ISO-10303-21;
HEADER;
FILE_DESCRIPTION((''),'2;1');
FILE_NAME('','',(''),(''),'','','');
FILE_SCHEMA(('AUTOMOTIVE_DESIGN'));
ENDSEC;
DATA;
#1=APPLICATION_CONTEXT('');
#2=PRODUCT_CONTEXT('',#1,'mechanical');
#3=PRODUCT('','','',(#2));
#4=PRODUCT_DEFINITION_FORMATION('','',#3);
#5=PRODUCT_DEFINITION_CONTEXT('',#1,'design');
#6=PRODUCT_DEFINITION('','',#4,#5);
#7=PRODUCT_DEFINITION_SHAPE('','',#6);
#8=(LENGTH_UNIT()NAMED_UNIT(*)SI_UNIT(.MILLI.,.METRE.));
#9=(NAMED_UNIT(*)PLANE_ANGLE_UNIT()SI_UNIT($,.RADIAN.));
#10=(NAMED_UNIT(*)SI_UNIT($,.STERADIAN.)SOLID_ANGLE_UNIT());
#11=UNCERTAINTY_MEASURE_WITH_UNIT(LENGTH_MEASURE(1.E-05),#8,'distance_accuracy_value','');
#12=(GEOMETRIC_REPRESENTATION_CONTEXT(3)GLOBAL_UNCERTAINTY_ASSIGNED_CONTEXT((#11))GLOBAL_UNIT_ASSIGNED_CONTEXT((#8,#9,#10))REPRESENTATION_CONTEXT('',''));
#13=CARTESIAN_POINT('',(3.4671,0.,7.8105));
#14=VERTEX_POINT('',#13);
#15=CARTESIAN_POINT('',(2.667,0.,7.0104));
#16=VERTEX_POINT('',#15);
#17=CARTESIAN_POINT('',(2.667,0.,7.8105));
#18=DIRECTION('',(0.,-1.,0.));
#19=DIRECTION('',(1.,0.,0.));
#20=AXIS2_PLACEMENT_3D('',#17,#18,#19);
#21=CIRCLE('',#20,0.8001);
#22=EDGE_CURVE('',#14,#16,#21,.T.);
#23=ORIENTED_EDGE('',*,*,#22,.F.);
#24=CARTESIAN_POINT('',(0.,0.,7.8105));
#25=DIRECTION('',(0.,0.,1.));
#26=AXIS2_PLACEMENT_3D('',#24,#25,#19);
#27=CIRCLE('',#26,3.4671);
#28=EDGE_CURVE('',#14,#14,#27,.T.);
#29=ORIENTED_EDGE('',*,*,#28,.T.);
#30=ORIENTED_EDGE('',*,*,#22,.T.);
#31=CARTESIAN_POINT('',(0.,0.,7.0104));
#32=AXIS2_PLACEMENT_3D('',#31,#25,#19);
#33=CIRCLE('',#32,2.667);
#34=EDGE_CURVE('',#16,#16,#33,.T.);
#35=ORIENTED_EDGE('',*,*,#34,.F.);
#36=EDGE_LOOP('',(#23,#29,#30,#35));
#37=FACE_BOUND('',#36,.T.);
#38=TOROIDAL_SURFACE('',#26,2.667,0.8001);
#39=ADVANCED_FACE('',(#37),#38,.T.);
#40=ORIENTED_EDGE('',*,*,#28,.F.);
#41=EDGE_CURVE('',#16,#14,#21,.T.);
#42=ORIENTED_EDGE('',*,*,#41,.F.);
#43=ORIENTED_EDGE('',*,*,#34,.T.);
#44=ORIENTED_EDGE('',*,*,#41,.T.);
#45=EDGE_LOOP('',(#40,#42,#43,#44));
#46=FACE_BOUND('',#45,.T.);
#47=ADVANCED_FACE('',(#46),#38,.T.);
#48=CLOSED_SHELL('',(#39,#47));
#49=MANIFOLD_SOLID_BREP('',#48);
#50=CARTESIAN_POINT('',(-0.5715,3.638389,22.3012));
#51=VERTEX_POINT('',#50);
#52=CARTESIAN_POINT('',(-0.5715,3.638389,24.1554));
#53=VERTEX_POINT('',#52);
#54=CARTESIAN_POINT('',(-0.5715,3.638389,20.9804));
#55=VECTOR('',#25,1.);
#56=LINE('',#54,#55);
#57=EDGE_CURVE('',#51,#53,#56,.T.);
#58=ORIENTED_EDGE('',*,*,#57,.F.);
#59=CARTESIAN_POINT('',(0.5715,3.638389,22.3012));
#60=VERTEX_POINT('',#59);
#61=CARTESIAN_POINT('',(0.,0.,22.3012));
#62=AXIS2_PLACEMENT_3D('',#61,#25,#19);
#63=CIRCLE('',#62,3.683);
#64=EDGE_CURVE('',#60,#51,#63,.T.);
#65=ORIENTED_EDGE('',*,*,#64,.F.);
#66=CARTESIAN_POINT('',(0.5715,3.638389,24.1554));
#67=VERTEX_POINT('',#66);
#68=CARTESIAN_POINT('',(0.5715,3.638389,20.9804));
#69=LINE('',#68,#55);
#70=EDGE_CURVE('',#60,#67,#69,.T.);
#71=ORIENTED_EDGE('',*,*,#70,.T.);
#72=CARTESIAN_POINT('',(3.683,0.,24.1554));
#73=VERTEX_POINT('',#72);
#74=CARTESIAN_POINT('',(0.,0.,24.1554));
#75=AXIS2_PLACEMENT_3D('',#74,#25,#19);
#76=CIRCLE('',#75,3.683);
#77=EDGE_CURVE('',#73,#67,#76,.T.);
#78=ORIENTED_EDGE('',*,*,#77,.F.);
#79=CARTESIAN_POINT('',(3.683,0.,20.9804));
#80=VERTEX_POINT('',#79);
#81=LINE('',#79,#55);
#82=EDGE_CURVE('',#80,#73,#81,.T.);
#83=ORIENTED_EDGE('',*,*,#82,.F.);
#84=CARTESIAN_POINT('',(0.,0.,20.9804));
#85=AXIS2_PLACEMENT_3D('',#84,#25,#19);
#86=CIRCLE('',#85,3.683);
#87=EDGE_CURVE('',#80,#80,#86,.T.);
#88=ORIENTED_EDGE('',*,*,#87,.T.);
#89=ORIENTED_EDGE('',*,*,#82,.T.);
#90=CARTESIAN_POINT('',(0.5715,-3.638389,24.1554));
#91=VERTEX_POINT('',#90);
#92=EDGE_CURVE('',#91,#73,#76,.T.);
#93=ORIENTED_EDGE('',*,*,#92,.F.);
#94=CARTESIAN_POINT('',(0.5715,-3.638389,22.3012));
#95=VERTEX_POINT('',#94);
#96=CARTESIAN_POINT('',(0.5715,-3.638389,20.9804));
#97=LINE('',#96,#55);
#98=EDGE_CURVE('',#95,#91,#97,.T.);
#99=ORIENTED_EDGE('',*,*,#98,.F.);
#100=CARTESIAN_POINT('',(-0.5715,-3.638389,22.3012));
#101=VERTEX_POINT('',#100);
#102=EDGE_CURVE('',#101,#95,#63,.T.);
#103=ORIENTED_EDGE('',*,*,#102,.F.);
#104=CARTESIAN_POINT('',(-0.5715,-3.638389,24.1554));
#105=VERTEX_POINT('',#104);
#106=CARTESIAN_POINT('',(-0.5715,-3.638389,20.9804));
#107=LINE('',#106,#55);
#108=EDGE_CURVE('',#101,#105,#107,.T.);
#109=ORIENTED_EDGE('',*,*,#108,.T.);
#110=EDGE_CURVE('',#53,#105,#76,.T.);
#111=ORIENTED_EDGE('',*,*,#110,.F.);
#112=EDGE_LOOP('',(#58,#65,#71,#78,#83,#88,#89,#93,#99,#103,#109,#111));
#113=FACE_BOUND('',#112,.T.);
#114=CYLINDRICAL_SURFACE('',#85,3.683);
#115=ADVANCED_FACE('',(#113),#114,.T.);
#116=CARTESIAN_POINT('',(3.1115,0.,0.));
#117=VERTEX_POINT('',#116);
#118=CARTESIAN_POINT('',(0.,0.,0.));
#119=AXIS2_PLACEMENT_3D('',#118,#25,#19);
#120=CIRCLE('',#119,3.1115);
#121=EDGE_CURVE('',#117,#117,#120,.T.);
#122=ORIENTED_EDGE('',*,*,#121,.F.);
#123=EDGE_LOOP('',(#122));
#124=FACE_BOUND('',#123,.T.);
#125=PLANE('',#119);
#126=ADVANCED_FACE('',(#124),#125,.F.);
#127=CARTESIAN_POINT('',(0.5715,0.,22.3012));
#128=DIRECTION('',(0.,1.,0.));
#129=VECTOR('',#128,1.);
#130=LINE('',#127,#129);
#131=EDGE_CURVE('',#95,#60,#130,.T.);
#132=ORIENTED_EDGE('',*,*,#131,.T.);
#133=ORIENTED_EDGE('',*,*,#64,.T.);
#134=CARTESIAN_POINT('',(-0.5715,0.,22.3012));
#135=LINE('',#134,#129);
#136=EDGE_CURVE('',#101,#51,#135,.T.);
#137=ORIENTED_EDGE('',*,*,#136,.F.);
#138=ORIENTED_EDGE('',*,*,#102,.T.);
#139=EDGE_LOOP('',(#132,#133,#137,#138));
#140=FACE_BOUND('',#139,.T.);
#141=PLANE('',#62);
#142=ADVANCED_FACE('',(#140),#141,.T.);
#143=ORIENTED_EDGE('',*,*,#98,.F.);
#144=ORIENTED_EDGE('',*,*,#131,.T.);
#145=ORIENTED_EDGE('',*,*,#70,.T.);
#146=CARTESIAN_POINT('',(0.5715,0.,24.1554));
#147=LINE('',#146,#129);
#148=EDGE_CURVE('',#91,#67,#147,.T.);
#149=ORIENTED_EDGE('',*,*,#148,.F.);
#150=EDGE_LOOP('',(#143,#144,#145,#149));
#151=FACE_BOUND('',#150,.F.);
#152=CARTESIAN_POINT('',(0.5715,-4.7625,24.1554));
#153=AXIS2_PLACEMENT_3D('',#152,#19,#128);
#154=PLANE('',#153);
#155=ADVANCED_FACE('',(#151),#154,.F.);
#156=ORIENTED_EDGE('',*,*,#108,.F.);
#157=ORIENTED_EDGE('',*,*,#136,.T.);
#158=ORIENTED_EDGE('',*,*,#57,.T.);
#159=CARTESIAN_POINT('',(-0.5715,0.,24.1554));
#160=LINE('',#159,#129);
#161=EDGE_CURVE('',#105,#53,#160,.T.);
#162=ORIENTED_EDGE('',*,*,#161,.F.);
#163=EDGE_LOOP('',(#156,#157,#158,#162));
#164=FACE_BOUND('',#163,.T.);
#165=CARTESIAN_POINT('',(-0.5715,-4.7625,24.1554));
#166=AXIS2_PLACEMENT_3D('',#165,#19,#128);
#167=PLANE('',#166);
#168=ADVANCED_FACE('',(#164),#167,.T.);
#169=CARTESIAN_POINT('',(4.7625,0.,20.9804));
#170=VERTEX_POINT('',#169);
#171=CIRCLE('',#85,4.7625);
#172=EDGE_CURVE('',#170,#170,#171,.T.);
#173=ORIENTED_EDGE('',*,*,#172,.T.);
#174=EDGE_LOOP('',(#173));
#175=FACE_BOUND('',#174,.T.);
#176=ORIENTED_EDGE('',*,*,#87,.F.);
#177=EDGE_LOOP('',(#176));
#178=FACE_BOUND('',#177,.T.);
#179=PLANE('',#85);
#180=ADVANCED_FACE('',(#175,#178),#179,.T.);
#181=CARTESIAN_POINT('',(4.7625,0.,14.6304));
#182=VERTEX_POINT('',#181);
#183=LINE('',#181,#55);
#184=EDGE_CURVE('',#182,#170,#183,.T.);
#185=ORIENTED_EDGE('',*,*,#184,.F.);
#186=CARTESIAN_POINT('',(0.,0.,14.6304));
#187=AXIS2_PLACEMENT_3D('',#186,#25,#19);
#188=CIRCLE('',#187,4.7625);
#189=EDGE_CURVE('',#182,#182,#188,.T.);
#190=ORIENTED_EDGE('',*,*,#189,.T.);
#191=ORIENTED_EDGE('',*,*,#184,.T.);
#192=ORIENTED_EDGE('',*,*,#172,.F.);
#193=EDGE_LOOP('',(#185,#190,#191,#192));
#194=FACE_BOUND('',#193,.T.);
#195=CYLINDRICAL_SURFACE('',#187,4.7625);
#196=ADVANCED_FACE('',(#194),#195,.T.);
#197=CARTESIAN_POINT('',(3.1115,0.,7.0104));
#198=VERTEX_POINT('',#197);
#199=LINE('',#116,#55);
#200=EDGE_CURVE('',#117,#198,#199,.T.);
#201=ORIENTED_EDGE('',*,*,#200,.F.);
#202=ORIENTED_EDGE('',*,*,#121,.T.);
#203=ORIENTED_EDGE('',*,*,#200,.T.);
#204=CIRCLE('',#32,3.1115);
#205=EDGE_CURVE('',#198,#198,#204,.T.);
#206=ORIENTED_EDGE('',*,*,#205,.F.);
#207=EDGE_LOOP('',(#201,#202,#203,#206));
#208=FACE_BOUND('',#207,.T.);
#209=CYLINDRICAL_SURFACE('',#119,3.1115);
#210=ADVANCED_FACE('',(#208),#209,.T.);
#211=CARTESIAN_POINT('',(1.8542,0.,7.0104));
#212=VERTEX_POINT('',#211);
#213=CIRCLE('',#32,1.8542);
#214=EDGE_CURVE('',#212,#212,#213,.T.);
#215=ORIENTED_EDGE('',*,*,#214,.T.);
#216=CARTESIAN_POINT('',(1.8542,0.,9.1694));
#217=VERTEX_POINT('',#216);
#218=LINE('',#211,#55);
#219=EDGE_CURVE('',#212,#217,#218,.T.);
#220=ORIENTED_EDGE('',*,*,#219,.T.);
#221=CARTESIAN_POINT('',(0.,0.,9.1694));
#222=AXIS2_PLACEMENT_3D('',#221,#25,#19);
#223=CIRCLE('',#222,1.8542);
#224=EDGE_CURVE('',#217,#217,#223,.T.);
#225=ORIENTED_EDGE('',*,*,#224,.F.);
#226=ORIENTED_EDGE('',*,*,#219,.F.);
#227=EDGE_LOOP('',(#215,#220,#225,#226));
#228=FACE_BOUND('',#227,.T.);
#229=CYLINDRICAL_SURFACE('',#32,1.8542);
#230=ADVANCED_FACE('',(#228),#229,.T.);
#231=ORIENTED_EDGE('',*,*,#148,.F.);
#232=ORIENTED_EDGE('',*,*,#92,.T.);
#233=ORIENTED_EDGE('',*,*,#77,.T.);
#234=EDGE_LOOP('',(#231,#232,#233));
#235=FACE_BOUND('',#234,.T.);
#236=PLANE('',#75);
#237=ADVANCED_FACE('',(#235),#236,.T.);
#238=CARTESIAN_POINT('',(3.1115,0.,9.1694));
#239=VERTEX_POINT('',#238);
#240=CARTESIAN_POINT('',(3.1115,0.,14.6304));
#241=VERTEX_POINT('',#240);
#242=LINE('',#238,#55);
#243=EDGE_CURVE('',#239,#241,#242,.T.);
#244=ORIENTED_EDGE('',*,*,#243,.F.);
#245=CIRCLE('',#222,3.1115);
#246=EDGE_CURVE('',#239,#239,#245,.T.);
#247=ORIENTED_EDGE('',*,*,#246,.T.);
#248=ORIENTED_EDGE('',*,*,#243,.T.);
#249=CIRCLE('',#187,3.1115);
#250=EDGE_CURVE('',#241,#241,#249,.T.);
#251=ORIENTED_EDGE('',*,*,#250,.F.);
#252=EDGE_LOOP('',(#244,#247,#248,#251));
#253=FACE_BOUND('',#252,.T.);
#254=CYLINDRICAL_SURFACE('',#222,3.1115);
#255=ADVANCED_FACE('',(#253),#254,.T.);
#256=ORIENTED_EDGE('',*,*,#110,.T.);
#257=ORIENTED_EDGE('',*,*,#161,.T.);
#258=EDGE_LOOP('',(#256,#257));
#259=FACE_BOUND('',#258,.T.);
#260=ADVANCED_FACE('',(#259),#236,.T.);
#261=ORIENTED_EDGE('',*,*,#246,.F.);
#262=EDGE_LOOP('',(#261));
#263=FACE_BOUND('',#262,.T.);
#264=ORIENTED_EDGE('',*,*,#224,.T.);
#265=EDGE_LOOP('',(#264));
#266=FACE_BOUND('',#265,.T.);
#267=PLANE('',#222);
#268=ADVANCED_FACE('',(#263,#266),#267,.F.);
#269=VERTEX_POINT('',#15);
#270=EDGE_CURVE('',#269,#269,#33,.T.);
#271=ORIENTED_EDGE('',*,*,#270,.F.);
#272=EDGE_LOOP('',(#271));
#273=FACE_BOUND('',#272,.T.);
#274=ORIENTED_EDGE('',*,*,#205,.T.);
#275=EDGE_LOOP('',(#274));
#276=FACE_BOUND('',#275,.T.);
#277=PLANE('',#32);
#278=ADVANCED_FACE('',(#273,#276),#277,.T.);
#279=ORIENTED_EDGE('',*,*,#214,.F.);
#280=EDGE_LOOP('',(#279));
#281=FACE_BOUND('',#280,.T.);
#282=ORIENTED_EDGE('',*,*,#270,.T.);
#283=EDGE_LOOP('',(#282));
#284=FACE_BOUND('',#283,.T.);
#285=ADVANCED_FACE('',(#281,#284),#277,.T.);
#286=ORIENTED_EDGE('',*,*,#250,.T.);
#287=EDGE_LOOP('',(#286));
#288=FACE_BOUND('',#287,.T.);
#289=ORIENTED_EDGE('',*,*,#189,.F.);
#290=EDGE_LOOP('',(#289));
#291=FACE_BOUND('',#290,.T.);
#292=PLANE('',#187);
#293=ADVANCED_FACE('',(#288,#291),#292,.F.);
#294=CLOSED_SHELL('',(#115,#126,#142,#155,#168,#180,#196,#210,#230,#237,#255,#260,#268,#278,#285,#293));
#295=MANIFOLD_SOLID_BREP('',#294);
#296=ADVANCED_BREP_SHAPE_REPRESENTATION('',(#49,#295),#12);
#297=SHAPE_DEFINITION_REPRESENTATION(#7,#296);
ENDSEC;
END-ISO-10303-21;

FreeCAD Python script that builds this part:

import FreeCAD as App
import Part
import Sketcher
Q = App.Units.Quantity


def add_polygon(sketch, points):
    """Adds a closed chain of lines whose ends are joined by coincident constraints."""
    first, n = sketch.GeometryCount, len(points)
    for a, b in zip(points, points[1:] + points[:1]):
        sketch.addGeometry(Part.LineSegment(App.Vector(*a, 0), App.Vector(*b, 0)), False)
    for i in range(n):
        sketch.addConstraint(Sketcher.Constraint("Coincident", first + i, 2, first + (i + 1) % n, 1))

doc = App.newDocument("Part")
body = doc.addObject("PartDesign::Body", "Body")
body.AllowCompound = True

# Sketch on XZ plane
sketch1 = body.newObject("Sketcher::SketchObject", "Sketch")
sketch1.AttachmentSupport = (doc.getObject("XZ_Plane"), [""])
sketch1.MapMode = "FlatFace"
add_polygon(sketch1, [(0, 24.2), (0, 0), (3.1, 0), (3.1, 7), (1.9, 7), (1.9, 9.2), (3.1, 9.2), (3.1, 14.6), (4.8, 14.6), (4.8, 21), (3.7, 21), (3.7, 24.2)])  # lines 0-11
sketch1.addConstraint([
    Sketcher.Constraint("Vertical", 0),
    Sketcher.Constraint("Horizontal", 1),
    Sketcher.Constraint("Vertical", 2),
    Sketcher.Constraint("Horizontal", 3),
    Sketcher.Constraint("Vertical", 4),
    Sketcher.Constraint("Horizontal", 5),
    Sketcher.Constraint("Vertical", 6),
    Sketcher.Constraint("Horizontal", 7),
    Sketcher.Constraint("Vertical", 8),
    Sketcher.Constraint("Horizontal", 9),
    Sketcher.Constraint("Vertical", 10),
    Sketcher.Constraint("Horizontal", 11),
    Sketcher.Constraint("Coincident", 0, 2, -1, 1),
    Sketcher.Constraint("Vertical", 2, 2, 5, 2),
    Sketcher.Constraint("DistanceY", 8, 1, 8, 2, Q("0.25 in")),
    Sketcher.Constraint("DistanceY", 2, 2, 6, 2, Q("0.3 in")),
    Sketcher.Constraint("DistanceX", 7, 1, 7, 2, Q("0.065 in")),
    Sketcher.Constraint("DistanceX", 11, 2, 11, 1, Q("0.145 in")),
    Sketcher.Constraint("DistanceY", 0, 2, 0, 1, Q("0.951 in")),
    Sketcher.Constraint("DistanceY", 2, 1, 2, 2, Q("0.276 in")),
    Sketcher.Constraint("DistanceY", 4, 1, 4, 2, Q("0.085 in")),
    Sketcher.Constraint("DistanceX", 1, 1, 1, 2, Q("0.1225 in")),
    Sketcher.Constraint("DistanceX", 3, 2, 3, 1, Q("0.0495 in")),
])
revolution = body.newObject("PartDesign::Revolution", "Revolution")
revolution.Profile = sketch1
revolution.ReferenceAxis = (sketch1, ["V_Axis"])
revolution.Angle = 360

# Sketch on XY plane
sketch2 = body.newObject("Sketcher::SketchObject", "Sketch001")
sketch2.AttachmentSupport = (doc.getObject("XY_Plane"), [""])
sketch2.MapMode = "FlatFace"
sketch2.AttachmentOffset = App.Placement(App.Vector(0, 0, 0.951 * 25.4), App.Rotation())
add_polygon(sketch2, [(-0.6, 4.8), (-0.6, -4.8), (0.6, -4.8), (0.6, 4.8)])  # lines 0-3
sketch2.addConstraint([
    Sketcher.Constraint("Vertical", 0),
    Sketcher.Constraint("Horizontal", 1),
    Sketcher.Constraint("Vertical", 2),
    Sketcher.Constraint("Horizontal", 3),
    Sketcher.Constraint("Symmetric", 0, 2, 2, 2, -1, 1),
    Sketcher.Constraint("DistanceX", 1, 1, 1, 2, Q("0.045 in")),
    Sketcher.Constraint("DistanceY", 0, 2, 0, 1, Q("0.375 in")),
])
pocket1 = body.newObject("PartDesign::Pocket", "Pocket")
pocket1.Profile = sketch2
pocket1.Length = Q("0.073 in")

# Sketch on XZ plane
sketch3 = body.newObject("Sketcher::SketchObject", "Sketch002")
sketch3.AttachmentSupport = (doc.getObject("XZ_Plane"), [""])
sketch3.MapMode = "FlatFace"
sketch3.addGeometry(Part.Circle(App.Vector(2.7, 7.8, 0), App.Vector(0, 0, 1), 0.8), False)
sketch3.addConstraint([
    Sketcher.Constraint("Diameter", 0, Q("0.063 in")),
    Sketcher.Constraint("DistanceX", -1, 1, 0, 3, Q("0.105 in")),
    Sketcher.Constraint("DistanceY", -1, 1, 0, 3, Q("0.3075 in")),
])
revolution2 = body.newObject("PartDesign::Revolution", "Revolution001")
revolution2.Profile = sketch3
revolution2.ReferenceAxis = (sketch3, ["V_Axis"])
revolution2.Angle = 360

doc.recompute()
